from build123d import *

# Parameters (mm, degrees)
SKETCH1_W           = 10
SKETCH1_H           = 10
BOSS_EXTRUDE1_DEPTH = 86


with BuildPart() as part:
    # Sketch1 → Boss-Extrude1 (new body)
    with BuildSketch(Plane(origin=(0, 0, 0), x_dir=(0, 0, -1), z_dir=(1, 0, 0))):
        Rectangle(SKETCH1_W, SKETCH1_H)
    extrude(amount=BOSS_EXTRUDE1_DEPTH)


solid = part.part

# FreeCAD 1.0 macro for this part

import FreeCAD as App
import Part
import Sketcher

V = App.Vector

doc = App.newDocument("Part")
body = doc.addObject("PartDesign::Body", "Body")

# Sketch on YZ plane
sketch1 = body.newObject("Sketcher::SketchObject", "Sketch")
sketch1.AttachmentSupport = (doc.getObject("YZ_Plane"), [""])
sketch1.MapMode = "FlatFace"
sketch1.addGeometry(Part.LineSegment(V(5, 5, 0), V(-5, 5, 0)), False)
sketch1.addGeometry(Part.LineSegment(V(-5, 5, 0), V(-5, -5, 0)), False)
sketch1.addGeometry(Part.LineSegment(V(-5, -5, 0), V(5, -5, 0)), False)
sketch1.addGeometry(Part.LineSegment(V(5, -5, 0), V(5, 5, 0)), False)
sketch1.addConstraint(Sketcher.Constraint("Coincident", 0, 2, 1, 1))
sketch1.addConstraint(Sketcher.Constraint("Coincident", 1, 2, 2, 1))
sketch1.addConstraint(Sketcher.Constraint("Coincident", 2, 2, 3, 1))
sketch1.addConstraint(Sketcher.Constraint("Coincident", 3, 2, 0, 1))
sketch1.addConstraint(Sketcher.Constraint("Horizontal", 0))
sketch1.addConstraint(Sketcher.Constraint("Vertical", 1))
sketch1.addConstraint(Sketcher.Constraint("Horizontal", 2))
sketch1.addConstraint(Sketcher.Constraint("Vertical", 3))
sketch1.addConstraint(Sketcher.Constraint("Symmetric", 0, 2, 2, 2, -1, 1))
sketch1.addConstraint(Sketcher.Constraint("Equal", 2, 1))
sketch1.addConstraint(Sketcher.Constraint("DistanceX", 0, 2, 0, 1, 10.0))
pad1 = body.newObject("PartDesign::Pad", "Pad")
pad1.Profile = sketch1
pad1.Length = 86

doc.recompute()
